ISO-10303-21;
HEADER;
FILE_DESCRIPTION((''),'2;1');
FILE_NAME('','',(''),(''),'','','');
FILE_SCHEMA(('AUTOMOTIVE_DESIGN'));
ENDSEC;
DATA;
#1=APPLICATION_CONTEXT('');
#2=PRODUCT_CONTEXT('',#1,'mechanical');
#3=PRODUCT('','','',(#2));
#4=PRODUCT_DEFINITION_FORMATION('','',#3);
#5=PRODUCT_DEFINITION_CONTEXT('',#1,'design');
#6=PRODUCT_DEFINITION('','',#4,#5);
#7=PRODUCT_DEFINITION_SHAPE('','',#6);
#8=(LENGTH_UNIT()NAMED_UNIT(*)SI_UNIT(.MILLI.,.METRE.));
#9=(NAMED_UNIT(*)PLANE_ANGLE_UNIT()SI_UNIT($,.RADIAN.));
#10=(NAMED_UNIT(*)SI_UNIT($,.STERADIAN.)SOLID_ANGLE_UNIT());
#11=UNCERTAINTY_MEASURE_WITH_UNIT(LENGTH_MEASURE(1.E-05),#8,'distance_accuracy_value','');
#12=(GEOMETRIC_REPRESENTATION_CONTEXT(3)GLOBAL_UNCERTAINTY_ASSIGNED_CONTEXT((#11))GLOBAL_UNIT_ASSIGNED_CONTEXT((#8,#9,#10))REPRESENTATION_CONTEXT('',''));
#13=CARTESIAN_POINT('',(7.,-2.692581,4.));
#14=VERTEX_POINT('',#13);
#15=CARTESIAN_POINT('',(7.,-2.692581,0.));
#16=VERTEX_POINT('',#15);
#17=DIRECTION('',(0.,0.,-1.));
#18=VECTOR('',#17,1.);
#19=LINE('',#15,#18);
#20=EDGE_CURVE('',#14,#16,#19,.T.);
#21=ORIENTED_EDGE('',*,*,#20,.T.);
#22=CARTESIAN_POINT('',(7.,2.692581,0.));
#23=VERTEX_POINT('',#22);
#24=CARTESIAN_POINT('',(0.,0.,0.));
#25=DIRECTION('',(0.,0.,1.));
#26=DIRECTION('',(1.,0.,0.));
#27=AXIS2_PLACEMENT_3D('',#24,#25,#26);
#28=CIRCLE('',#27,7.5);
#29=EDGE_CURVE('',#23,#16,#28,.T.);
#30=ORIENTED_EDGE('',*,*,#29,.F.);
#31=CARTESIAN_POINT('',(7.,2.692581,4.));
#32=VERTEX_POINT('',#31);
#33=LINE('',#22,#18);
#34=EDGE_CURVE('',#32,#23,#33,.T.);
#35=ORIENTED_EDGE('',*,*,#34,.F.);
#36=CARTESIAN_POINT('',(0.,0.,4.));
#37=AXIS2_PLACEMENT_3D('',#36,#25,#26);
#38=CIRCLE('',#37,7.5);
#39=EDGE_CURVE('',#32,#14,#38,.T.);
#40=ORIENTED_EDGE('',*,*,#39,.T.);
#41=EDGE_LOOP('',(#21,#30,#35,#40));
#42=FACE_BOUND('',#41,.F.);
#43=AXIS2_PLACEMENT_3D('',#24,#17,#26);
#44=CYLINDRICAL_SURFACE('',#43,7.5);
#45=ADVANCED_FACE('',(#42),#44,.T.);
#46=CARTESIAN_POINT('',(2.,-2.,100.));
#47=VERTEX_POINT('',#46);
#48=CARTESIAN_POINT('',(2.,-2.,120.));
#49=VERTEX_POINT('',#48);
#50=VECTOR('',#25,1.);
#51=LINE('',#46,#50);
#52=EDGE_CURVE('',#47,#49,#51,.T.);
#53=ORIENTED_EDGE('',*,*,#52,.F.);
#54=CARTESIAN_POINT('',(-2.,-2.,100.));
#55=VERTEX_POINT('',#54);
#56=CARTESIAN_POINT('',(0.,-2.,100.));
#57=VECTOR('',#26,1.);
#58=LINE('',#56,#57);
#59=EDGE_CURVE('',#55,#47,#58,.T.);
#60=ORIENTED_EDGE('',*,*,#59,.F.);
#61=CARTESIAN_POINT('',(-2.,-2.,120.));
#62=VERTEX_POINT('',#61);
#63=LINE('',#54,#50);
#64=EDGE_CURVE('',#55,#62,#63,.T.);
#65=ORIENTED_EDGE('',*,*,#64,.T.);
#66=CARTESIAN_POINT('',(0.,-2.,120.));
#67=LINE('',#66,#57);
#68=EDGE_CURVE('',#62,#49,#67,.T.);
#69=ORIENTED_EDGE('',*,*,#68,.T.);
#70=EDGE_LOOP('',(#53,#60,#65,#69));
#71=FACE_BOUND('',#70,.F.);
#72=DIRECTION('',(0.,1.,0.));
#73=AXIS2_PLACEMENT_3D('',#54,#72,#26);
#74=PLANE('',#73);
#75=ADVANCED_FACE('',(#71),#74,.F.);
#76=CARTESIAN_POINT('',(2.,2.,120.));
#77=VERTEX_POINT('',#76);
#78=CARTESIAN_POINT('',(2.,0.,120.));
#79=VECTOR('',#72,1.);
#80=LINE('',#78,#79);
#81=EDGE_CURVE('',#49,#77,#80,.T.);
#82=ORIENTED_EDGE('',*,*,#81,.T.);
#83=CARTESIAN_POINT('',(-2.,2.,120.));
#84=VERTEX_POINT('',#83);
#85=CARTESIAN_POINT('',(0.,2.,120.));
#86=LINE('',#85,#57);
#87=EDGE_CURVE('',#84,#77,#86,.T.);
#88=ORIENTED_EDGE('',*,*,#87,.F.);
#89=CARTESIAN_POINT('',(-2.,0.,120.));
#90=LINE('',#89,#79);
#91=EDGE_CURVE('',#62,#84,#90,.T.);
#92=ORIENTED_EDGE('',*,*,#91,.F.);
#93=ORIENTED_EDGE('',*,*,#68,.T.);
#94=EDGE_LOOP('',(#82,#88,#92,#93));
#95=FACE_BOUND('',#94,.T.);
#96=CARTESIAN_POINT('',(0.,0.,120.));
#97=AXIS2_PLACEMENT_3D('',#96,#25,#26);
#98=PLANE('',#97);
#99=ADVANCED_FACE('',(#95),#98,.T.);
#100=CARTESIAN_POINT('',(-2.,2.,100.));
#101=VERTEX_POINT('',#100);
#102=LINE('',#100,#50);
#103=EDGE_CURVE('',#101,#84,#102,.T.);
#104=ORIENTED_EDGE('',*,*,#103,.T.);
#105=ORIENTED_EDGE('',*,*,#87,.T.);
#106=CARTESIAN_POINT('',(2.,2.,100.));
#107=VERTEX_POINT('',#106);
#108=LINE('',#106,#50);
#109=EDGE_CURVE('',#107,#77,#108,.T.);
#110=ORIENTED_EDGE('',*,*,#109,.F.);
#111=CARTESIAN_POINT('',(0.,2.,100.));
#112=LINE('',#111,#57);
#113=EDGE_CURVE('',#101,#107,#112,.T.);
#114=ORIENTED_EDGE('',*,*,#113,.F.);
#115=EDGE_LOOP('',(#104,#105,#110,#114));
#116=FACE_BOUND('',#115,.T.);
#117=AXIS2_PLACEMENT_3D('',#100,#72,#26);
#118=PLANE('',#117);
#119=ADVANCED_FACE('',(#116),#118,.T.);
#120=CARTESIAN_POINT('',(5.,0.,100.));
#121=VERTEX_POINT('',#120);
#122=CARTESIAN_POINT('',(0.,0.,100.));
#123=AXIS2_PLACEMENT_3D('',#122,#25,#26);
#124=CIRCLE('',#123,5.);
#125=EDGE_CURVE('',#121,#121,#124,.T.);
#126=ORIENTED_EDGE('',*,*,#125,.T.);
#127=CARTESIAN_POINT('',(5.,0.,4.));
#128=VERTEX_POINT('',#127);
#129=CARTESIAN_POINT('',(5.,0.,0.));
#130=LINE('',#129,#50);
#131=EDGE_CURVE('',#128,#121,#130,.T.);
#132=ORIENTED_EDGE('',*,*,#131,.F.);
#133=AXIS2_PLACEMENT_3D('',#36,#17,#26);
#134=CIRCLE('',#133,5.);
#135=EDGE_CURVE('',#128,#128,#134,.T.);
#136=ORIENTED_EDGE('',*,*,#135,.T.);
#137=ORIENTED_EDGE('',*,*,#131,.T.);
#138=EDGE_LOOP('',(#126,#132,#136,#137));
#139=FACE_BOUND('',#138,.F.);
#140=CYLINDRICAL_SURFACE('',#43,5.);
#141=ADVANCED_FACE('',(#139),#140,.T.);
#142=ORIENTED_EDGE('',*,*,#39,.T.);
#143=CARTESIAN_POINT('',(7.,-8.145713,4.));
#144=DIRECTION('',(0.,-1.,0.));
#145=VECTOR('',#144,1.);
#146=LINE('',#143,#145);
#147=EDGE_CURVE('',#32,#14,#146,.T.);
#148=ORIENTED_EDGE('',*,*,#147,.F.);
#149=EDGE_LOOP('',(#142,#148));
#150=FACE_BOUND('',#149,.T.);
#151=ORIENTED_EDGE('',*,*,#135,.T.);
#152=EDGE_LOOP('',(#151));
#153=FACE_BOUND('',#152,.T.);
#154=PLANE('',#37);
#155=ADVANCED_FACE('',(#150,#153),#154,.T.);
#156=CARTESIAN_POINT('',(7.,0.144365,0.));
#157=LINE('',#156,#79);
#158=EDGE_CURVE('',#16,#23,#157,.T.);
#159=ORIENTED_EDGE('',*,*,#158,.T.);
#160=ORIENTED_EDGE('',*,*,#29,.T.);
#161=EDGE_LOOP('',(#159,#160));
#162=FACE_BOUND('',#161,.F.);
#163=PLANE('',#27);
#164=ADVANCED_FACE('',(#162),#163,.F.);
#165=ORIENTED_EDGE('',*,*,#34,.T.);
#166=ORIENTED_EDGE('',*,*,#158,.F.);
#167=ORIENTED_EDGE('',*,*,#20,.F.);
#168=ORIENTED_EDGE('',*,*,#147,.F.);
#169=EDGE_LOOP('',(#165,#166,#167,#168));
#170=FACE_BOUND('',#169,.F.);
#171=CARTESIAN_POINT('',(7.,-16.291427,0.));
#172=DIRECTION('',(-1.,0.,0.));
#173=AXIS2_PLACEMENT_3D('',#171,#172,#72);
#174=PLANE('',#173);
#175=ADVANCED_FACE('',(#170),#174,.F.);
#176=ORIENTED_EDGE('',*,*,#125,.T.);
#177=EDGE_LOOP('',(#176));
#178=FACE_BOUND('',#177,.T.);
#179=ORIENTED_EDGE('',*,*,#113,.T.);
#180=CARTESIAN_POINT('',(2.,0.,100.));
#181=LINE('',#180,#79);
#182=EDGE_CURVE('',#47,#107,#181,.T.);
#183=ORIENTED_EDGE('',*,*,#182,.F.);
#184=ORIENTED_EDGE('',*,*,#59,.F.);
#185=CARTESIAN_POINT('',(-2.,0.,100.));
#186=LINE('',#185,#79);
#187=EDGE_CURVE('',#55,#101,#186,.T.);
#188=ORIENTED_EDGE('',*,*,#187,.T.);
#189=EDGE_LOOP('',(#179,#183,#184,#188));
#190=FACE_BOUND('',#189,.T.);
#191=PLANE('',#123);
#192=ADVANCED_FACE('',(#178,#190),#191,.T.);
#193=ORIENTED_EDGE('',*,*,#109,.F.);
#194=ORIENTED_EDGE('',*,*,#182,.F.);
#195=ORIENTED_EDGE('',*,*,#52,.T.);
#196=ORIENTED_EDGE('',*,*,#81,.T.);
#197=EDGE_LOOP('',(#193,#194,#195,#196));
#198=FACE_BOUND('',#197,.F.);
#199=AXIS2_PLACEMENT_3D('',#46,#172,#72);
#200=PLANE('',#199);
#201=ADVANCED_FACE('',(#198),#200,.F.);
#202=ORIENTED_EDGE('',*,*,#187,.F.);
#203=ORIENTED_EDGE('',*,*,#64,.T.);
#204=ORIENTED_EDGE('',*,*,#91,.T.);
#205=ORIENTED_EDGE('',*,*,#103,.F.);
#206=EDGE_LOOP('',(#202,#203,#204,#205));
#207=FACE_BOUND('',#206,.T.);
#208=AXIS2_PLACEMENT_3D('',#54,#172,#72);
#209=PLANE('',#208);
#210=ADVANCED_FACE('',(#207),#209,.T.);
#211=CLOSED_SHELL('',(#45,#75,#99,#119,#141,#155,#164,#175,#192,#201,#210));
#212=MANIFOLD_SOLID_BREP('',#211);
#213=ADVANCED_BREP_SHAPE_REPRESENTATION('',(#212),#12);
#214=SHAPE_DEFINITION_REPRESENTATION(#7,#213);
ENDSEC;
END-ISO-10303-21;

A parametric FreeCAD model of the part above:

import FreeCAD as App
import Part
import Sketcher
from FreeCAD import Vector

doc = App.newDocument("Part")
body = doc.addObject("PartDesign::Body", "Body")

sketch1 = body.newObject("Sketcher::SketchObject", "Sketch")
sketch1.AttachmentSupport = (doc.getObject("XY_Plane"), [""])
sketch1.MapMode = "FlatFace"
sketch1.addGeometry(Part.Circle(Vector(0, 0, 0), Vector(0, 0, 1), 8), False)
sketch1.addConstraint(Sketcher.Constraint("Coincident", 0, 3, -1, 1))
sketch1.addConstraint(Sketcher.Constraint("Diameter", 0, 15.0))
pad1 = body.newObject("PartDesign::Pad", "Pad")
pad1.Profile = sketch1
pad1.Length = 4

sketch2 = body.newObject("Sketcher::SketchObject", "Sketch001")
sketch2.AttachmentSupport = (doc.getObject("XY_Plane"), [""])
sketch2.MapMode = "FlatFace"
sketch2.addGeometry(Part.Circle(Vector(0, 0, 0), Vector(0, 0, 1), 5), False)
sketch2.addConstraint(Sketcher.Constraint("Coincident", 0, 3, -1, 1))
sketch2.addConstraint(Sketcher.Constraint("Diameter", 0, 10.0))
pad2 = body.newObject("PartDesign::Pad", "Pad001")
pad2.Profile = sketch2
pad2.Length = 100

sketch3 = body.newObject("Sketcher::SketchObject", "Sketch002")
sketch3.AttachmentSupport = (doc.getObject("XY_Plane"), [""])
sketch3.MapMode = "FlatFace"
sketch3.AttachmentOffset = App.Placement(Vector(0, 0, 100), App.Rotation())
sketch3.addGeometry(Part.LineSegment(Vector(-2, 2, 0), Vector(-2, -2, 0)), False)
sketch3.addGeometry(Part.LineSegment(Vector(-2, -2, 0), Vector(2, -2, 0)), False)
sketch3.addGeometry(Part.LineSegment(Vector(2, -2, 0), Vector(2, 2, 0)), False)
sketch3.addGeometry(Part.LineSegment(Vector(2, 2, 0), Vector(-2, 2, 0)), False)
sketch3.addConstraint(Sketcher.Constraint("Coincident", 0, 2, 1, 1))
sketch3.addConstraint(Sketcher.Constraint("Coincident", 1, 2, 2, 1))
sketch3.addConstraint(Sketcher.Constraint("Coincident", 2, 2, 3, 1))
sketch3.addConstraint(Sketcher.Constraint("Coincident", 3, 2, 0, 1))
sketch3.addConstraint(Sketcher.Constraint("Vertical", 0))
sketch3.addConstraint(Sketcher.Constraint("Horizontal", 1))
sketch3.addConstraint(Sketcher.Constraint("Vertical", 2))
sketch3.addConstraint(Sketcher.Constraint("Horizontal", 3))
sketch3.addConstraint(Sketcher.Constraint("Symmetric", 0, 2, 2, 2, -1, 1))
sketch3.addConstraint(Sketcher.Constraint("Equal", 3, 0))
sketch3.addConstraint(Sketcher.Constraint("DistanceX", 1, 1, 1, 2, 4.0))
pad3 = body.newObject("PartDesign::Pad", "Pad002")
pad3.Profile = sketch3
pad3.Length = 20

sketch4 = body.newObject("Sketcher::SketchObject", "Sketch003")
sketch4.AttachmentSupport = (doc.getObject("XY_Plane"), [""])
sketch4.MapMode = "FlatFace"
sketch4.addGeometry(Part.LineSegment(Vector(7, 17, 0), Vector(7, -16, 0)), False)
sketch4.addGeometry(Part.LineSegment(Vector(7, -16, 0), Vector(17, -16, 0)), False)
sketch4.addGeometry(Part.LineSegment(Vector(17, -16, 0), Vector(17, 17, 0)), False)
sketch4.addGeometry(Part.LineSegment(Vector(17, 17, 0), Vector(7, 17, 0)), False)
sketch4.addConstraint(Sketcher.Constraint("Coincident", 0, 2, 1, 1))
sketch4.addConstraint(Sketcher.Constraint("Coincident", 1, 2, 2, 1))
sketch4.addConstraint(Sketcher.Constraint("Coincident", 2, 2, 3, 1))
sketch4.addConstraint(Sketcher.Constraint("Coincident", 3, 2, 0, 1))
sketch4.addConstraint(Sketcher.Constraint("Vertical", 0))
sketch4.addConstraint(Sketcher.Constraint("Horizontal", 1))
sketch4.addConstraint(Sketcher.Constraint("Vertical", 2))
sketch4.addConstraint(Sketcher.Constraint("Horizontal", 3))
sketch4.addConstraint(Sketcher.Constraint("DistanceX", -1, 1, 0, 2, 7.0))
sketch4.addConstraint(Sketcher.Constraint("DistanceX", 1, 1, 1, 2, 10.298821))
sketch4.addConstraint(Sketcher.Constraint("DistanceY", 0, 2, 0, 1, 32.871584))
sketch4.addConstraint(Sketcher.Constraint("DistanceY", 0, 2, -1, 1, 16.291427))
pocket1 = body.newObject("PartDesign::Pocket", "Pocket")
pocket1.Profile = sketch4
pocket1.Length = 25
pocket1.Reversed = True

doc.recompute()
